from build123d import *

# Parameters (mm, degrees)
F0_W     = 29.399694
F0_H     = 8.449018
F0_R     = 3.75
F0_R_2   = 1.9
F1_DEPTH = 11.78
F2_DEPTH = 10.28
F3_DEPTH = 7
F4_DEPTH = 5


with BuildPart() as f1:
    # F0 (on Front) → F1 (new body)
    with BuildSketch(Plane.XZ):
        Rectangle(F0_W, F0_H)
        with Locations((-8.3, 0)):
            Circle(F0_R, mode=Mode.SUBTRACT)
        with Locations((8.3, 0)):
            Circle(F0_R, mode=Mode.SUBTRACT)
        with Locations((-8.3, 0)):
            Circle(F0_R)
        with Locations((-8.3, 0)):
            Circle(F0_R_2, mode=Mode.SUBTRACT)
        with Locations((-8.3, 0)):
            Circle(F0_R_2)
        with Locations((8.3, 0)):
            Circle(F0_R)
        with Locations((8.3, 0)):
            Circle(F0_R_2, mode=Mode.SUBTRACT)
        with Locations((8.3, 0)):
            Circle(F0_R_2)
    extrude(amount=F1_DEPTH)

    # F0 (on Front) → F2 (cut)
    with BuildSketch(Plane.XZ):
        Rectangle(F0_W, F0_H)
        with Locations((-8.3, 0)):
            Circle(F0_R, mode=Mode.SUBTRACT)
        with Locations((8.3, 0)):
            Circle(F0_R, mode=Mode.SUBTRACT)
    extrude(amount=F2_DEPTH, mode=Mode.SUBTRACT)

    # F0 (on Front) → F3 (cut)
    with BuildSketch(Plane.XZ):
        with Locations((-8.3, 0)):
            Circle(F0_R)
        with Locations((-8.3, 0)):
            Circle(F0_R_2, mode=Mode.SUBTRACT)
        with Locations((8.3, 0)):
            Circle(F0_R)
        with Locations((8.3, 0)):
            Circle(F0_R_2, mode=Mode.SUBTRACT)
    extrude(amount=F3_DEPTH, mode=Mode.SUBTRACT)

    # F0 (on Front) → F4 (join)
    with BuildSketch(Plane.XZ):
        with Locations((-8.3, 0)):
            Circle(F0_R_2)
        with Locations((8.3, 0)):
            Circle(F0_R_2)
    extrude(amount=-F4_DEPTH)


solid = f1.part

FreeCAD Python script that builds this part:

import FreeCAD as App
import Part
import Sketcher
from FreeCAD import Vector
Q = App.Units.Quantity

doc = App.newDocument("Part")
body = doc.addObject("PartDesign::Body", "Body")

# Sketch on XZ plane
sketch1 = body.newObject("Sketcher::SketchObject", "Sketch")
sketch1.AttachmentSupport = (doc.getObject("XZ_Plane"), [""])
sketch1.MapMode = "FlatFace"
sketch1.addGeometry([
    Part.LineSegment(Vector(-15, 4, 0), Vector(-15, -4, 0)),
    Part.LineSegment(Vector(-15, -4, 0), Vector(15, -4, 0)),
    Part.LineSegment(Vector(15, -4, 0), Vector(15, 4, 0)),
    Part.LineSegment(Vector(15, 4, 0), Vector(-15, 4, 0)),
], False)
sketch1.addConstraint([
    Sketcher.Constraint("Coincident", 0, 2, 1, 1),
    Sketcher.Constraint("Coincident", 1, 2, 2, 1),
    Sketcher.Constraint("Coincident", 2, 2, 3, 1),
    Sketcher.Constraint("Coincident", 3, 2, 0, 1),
    Sketcher.Constraint("Vertical", 0),
    Sketcher.Constraint("Horizontal", 1),
    Sketcher.Constraint("Vertical", 2),
    Sketcher.Constraint("Horizontal", 3),
    Sketcher.Constraint("Symmetric", 0, 2, 2, 2, -1, 1),
    Sketcher.Constraint("DistanceX", 1, 1, 1, 2, Q("29.399694 mm")),
    Sketcher.Constraint("DistanceY", 0, 2, 0, 1, Q("8.449018 mm")),
])
pad1 = body.newObject("PartDesign::Pad", "Pad")
pad1.Profile = sketch1
pad1.Length = 11.78

# Sketch on XZ plane
sketch2 = body.newObject("Sketcher::SketchObject", "Sketch001")
sketch2.AttachmentSupport = (doc.getObject("XZ_Plane"), [""])
sketch2.MapMode = "FlatFace"
sketch2.addGeometry([
    Part.LineSegment(Vector(-14.7, 4.2, 0), Vector(-14.7, -4.2, 0)),  # 0
    Part.LineSegment(Vector(-14.7, -4.2, 0), Vector(14.7, -4.2, 0)),  # 1
    Part.LineSegment(Vector(14.7, -4.2, 0), Vector(14.7, 4.2, 0)),  # 2
    Part.LineSegment(Vector(14.7, 4.2, 0), Vector(-14.7, 4.2, 0)),  # 3
    Part.Circle(Vector(-8.3, 0, 0), Vector(0, 0, 1), 3.8),  # 4
    Part.Circle(Vector(8.3, 0, 0), Vector(0, 0, 1), 3.8),  # 5
], False)
sketch2.addConstraint([
    Sketcher.Constraint("Coincident", 0, 2, 1, 1),
    Sketcher.Constraint("Coincident", 1, 2, 2, 1),
    Sketcher.Constraint("Coincident", 2, 2, 3, 1),
    Sketcher.Constraint("Coincident", 3, 2, 0, 1),
    Sketcher.Constraint("Vertical", 0),
    Sketcher.Constraint("Horizontal", 1),
    Sketcher.Constraint("Vertical", 2),
    Sketcher.Constraint("Horizontal", 3),
    Sketcher.Constraint("Equal", 4, 5),
    Sketcher.Constraint("Symmetric", 4, 3, 5, 3, -1, 1),
    Sketcher.Constraint("Symmetric", 0, 2, 2, 2, -1, 1),
    Sketcher.Constraint("PointOnObject", 4, 3, -1),
    Sketcher.Constraint("Diameter", 4, Q("7.5 mm")),
    Sketcher.Constraint("DistanceX", 4, 3, -1, 1, Q("8.3 mm")),
    Sketcher.Constraint("DistanceX", 1, 1, 1, 2, Q("29.399694 mm")),
    Sketcher.Constraint("DistanceY", 0, 2, 0, 1, Q("8.449018 mm")),
])
pocket1 = body.newObject("PartDesign::Pocket", "Pocket")
pocket1.Profile = sketch2
pocket1.Length = 10.28
pocket1.Reversed = True

# Sketch on XZ plane
sketch3 = body.newObject("Sketcher::SketchObject", "Sketch002")
sketch3.AttachmentSupport = (doc.getObject("XZ_Plane"), [""])
sketch3.MapMode = "FlatFace"
sketch3.addGeometry([
    Part.Circle(Vector(-8.3, 0, 0), Vector(0, 0, 1), 3.8),
    Part.Circle(Vector(-8.3, 0, 0), Vector(0, 0, 1), 1.9),
    Part.Circle(Vector(8.3, 0, 0), Vector(0, 0, 1), 3.8),
    Part.Circle(Vector(8.3, 0, 0), Vector(0, 0, 1), 1.9),
], False)
sketch3.addConstraint([
    Sketcher.Constraint("Coincident", 1, 3, 0, 3),
    Sketcher.Constraint("Coincident", 3, 3, 2, 3),
    Sketcher.Constraint("Equal", 0, 2),
    Sketcher.Constraint("Equal", 1, 3),
    Sketcher.Constraint("Symmetric", 0, 3, 2, 3, -1, 1),
    Sketcher.Constraint("PointOnObject", 0, 3, -1),
    Sketcher.Constraint("Diameter", 0, Q("7.5 mm")),
    Sketcher.Constraint("Diameter", 1, Q("3.8 mm")),
    Sketcher.Constraint("DistanceX", 0, 3, -1, 1, Q("8.3 mm")),
])
pocket2 = body.newObject("PartDesign::Pocket", "Pocket001")
pocket2.Profile = sketch3
pocket2.Length = 7
pocket2.Reversed = True

# Sketch on XZ plane
sketch4 = body.newObject("Sketcher::SketchObject", "Sketch003")
sketch4.AttachmentSupport = (doc.getObject("XZ_Plane"), [""])
sketch4.MapMode = "FlatFace"
sketch4.addGeometry([
    Part.Circle(Vector(-8.3, 0, 0), Vector(0, 0, 1), 1.9),
    Part.Circle(Vector(8.3, 0, 0), Vector(0, 0, 1), 1.9),
], False)
sketch4.addConstraint([
    Sketcher.Constraint("Equal", 0, 1),
    Sketcher.Constraint("Symmetric", 0, 3, 1, 3, -1, 1),
    Sketcher.Constraint("PointOnObject", 0, 3, -1),
    Sketcher.Constraint("Diameter", 0, Q("3.8 mm")),
    Sketcher.Constraint("DistanceX", 0, 3, -1, 1, Q("8.3 mm")),
])
pad2 = body.newObject("PartDesign::Pad", "Pad001")
pad2.Profile = sketch4
pad2.Length = 5
pad2.Reversed = True

doc.recompute()
